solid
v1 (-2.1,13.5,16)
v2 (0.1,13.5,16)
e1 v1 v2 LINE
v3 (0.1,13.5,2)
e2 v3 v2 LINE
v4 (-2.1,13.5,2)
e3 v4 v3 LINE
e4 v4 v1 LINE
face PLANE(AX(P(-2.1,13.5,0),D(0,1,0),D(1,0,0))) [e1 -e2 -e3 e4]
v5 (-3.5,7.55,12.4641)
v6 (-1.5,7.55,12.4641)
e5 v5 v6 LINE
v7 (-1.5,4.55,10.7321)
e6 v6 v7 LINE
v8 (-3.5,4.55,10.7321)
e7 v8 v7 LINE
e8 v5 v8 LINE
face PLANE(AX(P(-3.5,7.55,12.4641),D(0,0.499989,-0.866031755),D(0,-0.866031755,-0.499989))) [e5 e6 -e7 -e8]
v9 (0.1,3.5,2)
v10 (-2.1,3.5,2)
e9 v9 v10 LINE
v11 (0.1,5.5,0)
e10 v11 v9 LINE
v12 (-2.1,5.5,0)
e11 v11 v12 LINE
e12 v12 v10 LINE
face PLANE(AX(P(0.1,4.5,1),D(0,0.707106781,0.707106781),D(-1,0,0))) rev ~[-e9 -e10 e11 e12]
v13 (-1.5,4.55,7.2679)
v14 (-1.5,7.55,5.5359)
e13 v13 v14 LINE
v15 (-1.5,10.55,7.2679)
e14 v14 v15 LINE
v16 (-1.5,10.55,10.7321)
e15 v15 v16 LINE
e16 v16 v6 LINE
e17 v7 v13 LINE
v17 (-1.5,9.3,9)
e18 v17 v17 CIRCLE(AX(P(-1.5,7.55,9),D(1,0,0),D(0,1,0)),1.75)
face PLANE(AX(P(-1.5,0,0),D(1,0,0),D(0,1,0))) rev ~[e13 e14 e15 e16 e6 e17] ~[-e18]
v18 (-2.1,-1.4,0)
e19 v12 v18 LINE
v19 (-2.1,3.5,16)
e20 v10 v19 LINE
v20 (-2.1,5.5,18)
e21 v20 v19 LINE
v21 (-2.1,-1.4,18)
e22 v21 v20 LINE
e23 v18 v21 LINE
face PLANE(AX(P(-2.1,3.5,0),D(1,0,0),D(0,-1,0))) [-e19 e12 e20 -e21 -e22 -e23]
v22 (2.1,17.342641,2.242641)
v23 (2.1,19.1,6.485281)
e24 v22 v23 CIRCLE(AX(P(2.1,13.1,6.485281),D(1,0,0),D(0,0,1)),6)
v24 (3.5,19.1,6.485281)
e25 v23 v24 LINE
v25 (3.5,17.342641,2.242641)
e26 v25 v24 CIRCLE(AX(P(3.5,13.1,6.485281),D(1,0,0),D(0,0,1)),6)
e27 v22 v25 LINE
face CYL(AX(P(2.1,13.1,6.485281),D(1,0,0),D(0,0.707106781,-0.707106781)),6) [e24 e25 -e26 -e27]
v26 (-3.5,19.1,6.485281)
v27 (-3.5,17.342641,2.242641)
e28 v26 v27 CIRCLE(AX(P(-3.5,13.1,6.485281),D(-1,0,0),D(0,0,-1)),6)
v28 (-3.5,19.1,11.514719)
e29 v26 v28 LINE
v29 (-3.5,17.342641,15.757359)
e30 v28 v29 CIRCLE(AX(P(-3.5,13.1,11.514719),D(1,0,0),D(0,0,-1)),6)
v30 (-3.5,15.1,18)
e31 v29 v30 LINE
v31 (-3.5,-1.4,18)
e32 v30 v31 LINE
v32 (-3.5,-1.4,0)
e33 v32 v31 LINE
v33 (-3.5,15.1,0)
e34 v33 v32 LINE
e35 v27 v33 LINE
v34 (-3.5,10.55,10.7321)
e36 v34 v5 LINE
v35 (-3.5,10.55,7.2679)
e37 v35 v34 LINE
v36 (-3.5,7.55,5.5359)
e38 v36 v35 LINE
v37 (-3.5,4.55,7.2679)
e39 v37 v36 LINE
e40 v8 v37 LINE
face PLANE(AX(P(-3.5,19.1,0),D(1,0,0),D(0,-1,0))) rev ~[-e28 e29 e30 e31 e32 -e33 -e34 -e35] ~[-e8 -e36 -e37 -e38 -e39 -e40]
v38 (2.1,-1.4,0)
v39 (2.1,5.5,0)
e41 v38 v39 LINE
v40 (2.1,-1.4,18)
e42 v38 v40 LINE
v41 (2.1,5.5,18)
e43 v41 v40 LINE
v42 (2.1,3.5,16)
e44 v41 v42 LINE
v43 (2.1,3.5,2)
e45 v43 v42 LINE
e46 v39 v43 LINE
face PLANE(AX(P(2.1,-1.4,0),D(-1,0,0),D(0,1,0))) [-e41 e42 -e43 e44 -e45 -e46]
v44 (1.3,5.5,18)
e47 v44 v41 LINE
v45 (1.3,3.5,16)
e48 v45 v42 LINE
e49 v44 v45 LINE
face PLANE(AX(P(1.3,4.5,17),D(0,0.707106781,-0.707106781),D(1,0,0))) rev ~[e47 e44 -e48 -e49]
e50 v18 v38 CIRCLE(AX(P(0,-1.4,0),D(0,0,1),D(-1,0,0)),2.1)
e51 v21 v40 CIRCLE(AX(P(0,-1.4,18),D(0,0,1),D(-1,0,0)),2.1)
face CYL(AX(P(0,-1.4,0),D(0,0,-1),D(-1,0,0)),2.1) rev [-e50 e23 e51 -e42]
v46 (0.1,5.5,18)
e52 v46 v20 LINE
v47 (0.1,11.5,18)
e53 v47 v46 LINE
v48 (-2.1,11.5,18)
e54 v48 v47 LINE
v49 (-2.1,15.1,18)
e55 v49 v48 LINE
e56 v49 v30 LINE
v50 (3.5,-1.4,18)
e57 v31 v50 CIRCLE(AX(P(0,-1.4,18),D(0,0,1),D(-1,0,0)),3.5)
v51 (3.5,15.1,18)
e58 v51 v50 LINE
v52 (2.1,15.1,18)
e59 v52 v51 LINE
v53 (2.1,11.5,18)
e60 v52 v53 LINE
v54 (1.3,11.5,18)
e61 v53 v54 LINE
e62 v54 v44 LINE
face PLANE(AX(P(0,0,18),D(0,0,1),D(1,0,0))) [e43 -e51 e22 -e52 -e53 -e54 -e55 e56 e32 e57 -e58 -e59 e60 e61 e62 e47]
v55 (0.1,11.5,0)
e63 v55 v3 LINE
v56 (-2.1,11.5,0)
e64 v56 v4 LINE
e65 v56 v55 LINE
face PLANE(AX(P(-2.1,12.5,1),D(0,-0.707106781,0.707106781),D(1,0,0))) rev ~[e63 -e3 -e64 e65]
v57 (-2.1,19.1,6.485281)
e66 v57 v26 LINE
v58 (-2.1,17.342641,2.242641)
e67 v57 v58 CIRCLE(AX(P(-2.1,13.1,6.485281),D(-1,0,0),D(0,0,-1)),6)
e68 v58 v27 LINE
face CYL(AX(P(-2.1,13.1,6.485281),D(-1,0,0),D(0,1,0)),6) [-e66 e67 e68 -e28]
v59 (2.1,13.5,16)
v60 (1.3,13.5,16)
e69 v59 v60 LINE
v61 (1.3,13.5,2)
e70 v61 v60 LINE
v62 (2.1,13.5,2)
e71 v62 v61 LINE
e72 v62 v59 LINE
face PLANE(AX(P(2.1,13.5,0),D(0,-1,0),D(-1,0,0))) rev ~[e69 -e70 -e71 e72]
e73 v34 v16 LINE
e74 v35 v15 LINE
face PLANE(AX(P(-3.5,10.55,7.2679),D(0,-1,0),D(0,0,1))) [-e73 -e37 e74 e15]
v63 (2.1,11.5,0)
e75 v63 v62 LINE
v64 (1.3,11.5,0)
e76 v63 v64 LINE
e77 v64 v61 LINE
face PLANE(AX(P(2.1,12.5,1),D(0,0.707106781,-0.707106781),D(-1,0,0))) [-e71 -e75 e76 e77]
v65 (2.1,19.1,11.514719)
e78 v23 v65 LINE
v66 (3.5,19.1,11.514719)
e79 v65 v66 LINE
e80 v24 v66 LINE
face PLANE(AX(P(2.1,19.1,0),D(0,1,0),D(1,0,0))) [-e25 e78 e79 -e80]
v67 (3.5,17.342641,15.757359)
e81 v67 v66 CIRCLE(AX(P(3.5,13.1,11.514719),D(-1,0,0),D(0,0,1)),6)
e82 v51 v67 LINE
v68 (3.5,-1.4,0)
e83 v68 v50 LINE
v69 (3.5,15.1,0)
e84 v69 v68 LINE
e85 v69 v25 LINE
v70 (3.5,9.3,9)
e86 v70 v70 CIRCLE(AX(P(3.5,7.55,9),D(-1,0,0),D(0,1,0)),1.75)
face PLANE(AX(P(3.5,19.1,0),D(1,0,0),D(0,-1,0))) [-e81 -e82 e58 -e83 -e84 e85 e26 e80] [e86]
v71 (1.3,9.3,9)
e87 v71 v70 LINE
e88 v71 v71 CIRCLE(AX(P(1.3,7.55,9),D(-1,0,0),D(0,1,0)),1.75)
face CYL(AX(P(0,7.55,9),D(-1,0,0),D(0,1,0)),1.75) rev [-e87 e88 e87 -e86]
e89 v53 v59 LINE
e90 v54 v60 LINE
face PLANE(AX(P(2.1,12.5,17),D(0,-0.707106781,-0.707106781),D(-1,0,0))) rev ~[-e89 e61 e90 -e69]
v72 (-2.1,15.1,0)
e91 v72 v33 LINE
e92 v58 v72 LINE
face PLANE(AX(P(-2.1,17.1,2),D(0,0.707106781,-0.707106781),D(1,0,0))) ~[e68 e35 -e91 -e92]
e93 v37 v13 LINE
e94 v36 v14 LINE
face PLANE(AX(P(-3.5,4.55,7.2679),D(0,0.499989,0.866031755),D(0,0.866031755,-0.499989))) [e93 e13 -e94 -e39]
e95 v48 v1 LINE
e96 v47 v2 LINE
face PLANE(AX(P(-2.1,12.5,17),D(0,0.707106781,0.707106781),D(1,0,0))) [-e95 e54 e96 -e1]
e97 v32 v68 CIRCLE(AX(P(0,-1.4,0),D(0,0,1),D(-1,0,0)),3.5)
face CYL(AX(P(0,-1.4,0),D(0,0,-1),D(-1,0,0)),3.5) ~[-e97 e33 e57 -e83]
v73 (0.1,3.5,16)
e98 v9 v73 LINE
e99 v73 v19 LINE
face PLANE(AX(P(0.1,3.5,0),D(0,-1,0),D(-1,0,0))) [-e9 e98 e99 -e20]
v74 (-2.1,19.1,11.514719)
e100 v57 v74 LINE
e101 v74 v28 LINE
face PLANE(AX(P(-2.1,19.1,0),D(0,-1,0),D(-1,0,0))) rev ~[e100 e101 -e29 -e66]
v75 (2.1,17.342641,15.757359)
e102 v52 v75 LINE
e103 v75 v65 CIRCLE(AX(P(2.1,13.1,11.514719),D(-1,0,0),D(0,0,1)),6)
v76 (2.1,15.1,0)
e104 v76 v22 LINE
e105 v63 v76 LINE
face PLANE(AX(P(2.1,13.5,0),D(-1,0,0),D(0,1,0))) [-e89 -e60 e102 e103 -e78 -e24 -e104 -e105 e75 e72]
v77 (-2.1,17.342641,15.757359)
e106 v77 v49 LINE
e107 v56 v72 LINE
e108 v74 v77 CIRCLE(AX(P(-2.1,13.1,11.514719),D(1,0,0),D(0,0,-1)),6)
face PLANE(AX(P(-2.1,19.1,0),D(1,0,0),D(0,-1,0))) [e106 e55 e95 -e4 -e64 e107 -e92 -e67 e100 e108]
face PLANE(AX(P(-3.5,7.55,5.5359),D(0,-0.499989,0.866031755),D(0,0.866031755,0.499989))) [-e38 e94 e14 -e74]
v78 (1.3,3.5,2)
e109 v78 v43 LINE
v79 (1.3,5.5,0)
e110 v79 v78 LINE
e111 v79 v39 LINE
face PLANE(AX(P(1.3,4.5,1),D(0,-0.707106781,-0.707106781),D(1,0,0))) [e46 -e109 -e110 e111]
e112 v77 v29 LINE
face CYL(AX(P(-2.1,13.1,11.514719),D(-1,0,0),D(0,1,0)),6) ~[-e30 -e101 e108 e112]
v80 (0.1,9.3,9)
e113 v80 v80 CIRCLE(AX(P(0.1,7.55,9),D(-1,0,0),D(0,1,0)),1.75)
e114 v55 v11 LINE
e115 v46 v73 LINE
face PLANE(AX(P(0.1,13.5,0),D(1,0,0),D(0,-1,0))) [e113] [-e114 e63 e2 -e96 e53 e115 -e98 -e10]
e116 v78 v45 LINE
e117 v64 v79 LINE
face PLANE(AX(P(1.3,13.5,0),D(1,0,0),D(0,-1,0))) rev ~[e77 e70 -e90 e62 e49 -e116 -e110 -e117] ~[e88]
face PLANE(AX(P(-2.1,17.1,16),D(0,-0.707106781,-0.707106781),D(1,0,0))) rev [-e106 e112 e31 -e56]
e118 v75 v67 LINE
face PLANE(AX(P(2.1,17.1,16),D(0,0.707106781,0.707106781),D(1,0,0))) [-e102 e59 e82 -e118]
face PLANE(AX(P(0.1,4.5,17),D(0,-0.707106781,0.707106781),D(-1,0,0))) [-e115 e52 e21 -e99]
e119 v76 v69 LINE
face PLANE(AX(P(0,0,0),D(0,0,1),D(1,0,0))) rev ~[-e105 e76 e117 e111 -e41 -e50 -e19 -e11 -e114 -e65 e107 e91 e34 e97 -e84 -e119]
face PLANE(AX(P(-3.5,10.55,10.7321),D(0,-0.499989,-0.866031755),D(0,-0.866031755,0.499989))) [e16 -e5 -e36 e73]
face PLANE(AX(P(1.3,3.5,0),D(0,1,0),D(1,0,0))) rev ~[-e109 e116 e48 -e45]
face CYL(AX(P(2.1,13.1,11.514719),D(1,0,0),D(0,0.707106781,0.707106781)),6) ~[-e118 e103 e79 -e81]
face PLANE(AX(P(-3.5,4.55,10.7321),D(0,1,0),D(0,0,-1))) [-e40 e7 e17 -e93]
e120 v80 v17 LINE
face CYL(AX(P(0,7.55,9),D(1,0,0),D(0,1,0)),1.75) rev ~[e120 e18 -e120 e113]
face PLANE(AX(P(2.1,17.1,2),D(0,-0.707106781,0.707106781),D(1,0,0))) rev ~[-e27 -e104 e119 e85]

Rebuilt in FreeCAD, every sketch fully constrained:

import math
import FreeCAD as App
import Part
import Sketcher

V = App.Vector
Q = App.Units.Quantity


def edges_at(feature, points):
    """Names of the edges that pass closest to the given points."""
    edges = feature.Shape.Edges
    near = lambda p: min(range(len(edges)), key=lambda i: edges[i].distToShape(Part.Vertex(*p))[0])
    return sorted({f"Edge{near(p) + 1}" for p in points})


def add_polygon(sketch, points):
    """Adds a closed chain of lines whose ends are joined by coincident constraints."""
    first, n = sketch.GeometryCount, len(points)
    for a, b in zip(points, points[1:] + points[:1]):
        sketch.addGeometry(Part.LineSegment(App.Vector(*a, 0), App.Vector(*b, 0)), False)
    for i in range(n):
        sketch.addConstraint(Sketcher.Constraint("Coincident", first + i, 2, first + (i + 1) % n, 1))

doc = App.newDocument("Part")
body = doc.addObject("PartDesign::Body", "Body")

# Sketch on XY plane
sketch1 = doc.addObject("Sketcher::SketchObject", "Sketch")
body.addObject(sketch1)
sketch1.AttachmentSupport = (doc.XY_Plane, [""])
sketch1.MapMode = "FlatFace"
sketch1.addGeometry([
    Part.LineSegment(V(-2.1, 13.5, 0), V(-2.1, 19.1, 0)),  # 0
    Part.LineSegment(V(-2.1, 19.1, 0), V(-3.5, 19.1, 0)),  # 1
    Part.LineSegment(V(-3.5, 19.1, 0), V(-3.5, -1.4, 0)),  # 2
    Part.ArcOfCircle(Part.Circle(V(0, -1.4, 0), V(0, 0, 1), 3.5), math.radians(180), math.radians(360)),  # 3
    Part.LineSegment(V(3.5, -1.4, 0), V(3.5, 19.1, 0)),  # 4
    Part.LineSegment(V(3.5, 19.1, 0), V(2.1, 19.1, 0)),  # 5
    Part.LineSegment(V(2.1, 19.1, 0), V(2.1, 13.5, 0)),  # 6
    Part.LineSegment(V(2.1, 13.5, 0), V(1.3, 13.5, 0)),  # 7
    Part.LineSegment(V(1.3, 13.5, 0), V(1.3, 3.5, 0)),  # 8
    Part.LineSegment(V(1.3, 3.5, 0), V(2.1, 3.5, 0)),  # 9
    Part.LineSegment(V(2.1, 3.5, 0), V(2.1, -1.4, 0)),  # 10
    Part.ArcOfCircle(Part.Circle(V(0, -1.4, 0), V(0, 0, 1), 2.1), math.radians(180), math.radians(360)),  # 11
    Part.LineSegment(V(-2.1, -1.4, 0), V(-2.1, 3.5, 0)),  # 12
    Part.LineSegment(V(-2.1, 3.5, 0), V(0.1, 3.5, 0)),  # 13
    Part.LineSegment(V(0.1, 3.5, 0), V(0.1, 13.5, 0)),  # 14
    Part.LineSegment(V(0.1, 13.5, 0), V(-2.1, 13.5, 0)),  # 15
], False)
sketch1.addConstraint([
    Sketcher.Constraint("Coincident", 0, 2, 1, 1),
    Sketcher.Constraint("Coincident", 1, 2, 2, 1),
    Sketcher.Constraint("Tangent", 2, 2, 3, 1),
    Sketcher.Constraint("Tangent", 3, 2, 4, 1),
    Sketcher.Constraint("Coincident", 4, 2, 5, 1),
    Sketcher.Constraint("Coincident", 5, 2, 6, 1),
    Sketcher.Constraint("Coincident", 6, 2, 7, 1),
    Sketcher.Constraint("Coincident", 7, 2, 8, 1),
    Sketcher.Constraint("Coincident", 8, 2, 9, 1),
    Sketcher.Constraint("Coincident", 9, 2, 10, 1),
    Sketcher.Constraint("Tangent", 10, 2, 11, 2),
    Sketcher.Constraint("Tangent", 11, 1, 12, 1),
    Sketcher.Constraint("Coincident", 12, 2, 13, 1),
    Sketcher.Constraint("Coincident", 13, 2, 14, 1),
    Sketcher.Constraint("Coincident", 14, 2, 15, 1),
    Sketcher.Constraint("Coincident", 15, 2, 0, 1),
    Sketcher.Constraint("Vertical", 0),
    Sketcher.Constraint("Horizontal", 1),
    Sketcher.Constraint("Vertical", 2),
    Sketcher.Constraint("Vertical", 4),
    Sketcher.Constraint("Horizontal", 5),
    Sketcher.Constraint("Vertical", 6),
    Sketcher.Constraint("Horizontal", 7),
    Sketcher.Constraint("Vertical", 8),
    Sketcher.Constraint("Horizontal", 9),
    Sketcher.Constraint("Vertical", 10),
    Sketcher.Constraint("Vertical", 12),
    Sketcher.Constraint("Horizontal", 13),
    Sketcher.Constraint("Vertical", 14),
    Sketcher.Constraint("Horizontal", 15),
    Sketcher.Constraint("Coincident", 11, 3, 3, 3),
    Sketcher.Constraint("Symmetric", 1, 2, 4, 2, -2),
    Sketcher.Constraint("Symmetric", 6, 2, 15, 2, -2),
    Sketcher.Constraint("Horizontal", 9, 2, 12, 2),
    Sketcher.Constraint("Vertical", 6, 2, 9, 2),
    Sketcher.Constraint("Radius", 3, Q("3.5 mm")),
    Sketcher.Constraint("Radius", 11, Q("2.1 mm")),
    Sketcher.Constraint("DistanceY", 8, 2, 8, 1, Q("10 mm")),
    Sketcher.Constraint("DistanceX", 7, 2, 7, 1, Q("0.8 mm")),
    Sketcher.Constraint("DistanceX", 13, 1, 13, 2, Q("2.2 mm")),
    Sketcher.Constraint("DistanceY", 3, 3, -1, 1, Q("1.4 mm")),
    Sketcher.Constraint("DistanceY", -1, 1, 8, 2, Q("3.5 mm")),
    Sketcher.Constraint("DistanceY", 0, 1, 0, 2, Q("5.6 mm")),
])
pad1 = doc.addObject("PartDesign::Pad", "Pad")
body.addObject(pad1)
pad1.Profile = sketch1
pad1.Length = 18

# Sketch on YZ plane
sketch2 = doc.addObject("Sketcher::SketchObject", "Sketch001")
body.addObject(sketch2)
sketch2.AttachmentSupport = (doc.YZ_Plane, [""])
sketch2.MapMode = "FlatFace"
sketch2.addGeometry(Part.Circle(V(7.5, 9, 0), V(0, 0, 1), 1.8), False)
sketch2.addConstraint([
    Sketcher.Constraint("Diameter", 0, Q("3.5 mm")),
    Sketcher.Constraint("DistanceY", -1, 1, 0, 3, Q("9 mm")),
    Sketcher.Constraint("DistanceX", -1, 1, 0, 3, Q("7.55 mm")),
])
pocket1 = doc.addObject("PartDesign::Pocket", "Pocket")
body.addObject(pocket1)
pocket1.Profile = sketch2
pocket1.Length = 14
pocket1.Midplane = True
doc.recompute()

chamfer = doc.addObject("PartDesign::Chamfer", "Chamfer")
body.addObject(chamfer)
chamfer.Base = (pocket1, edges_at(pocket1, [
    (2.8, 19.1, 0),
    (-2.8, 19.1, 0),
    (2.8, 19.1, 18),
    (-2.8, 19.1, 18),
]))
chamfer.Size = 4
doc.recompute()

fillet = doc.addObject("PartDesign::Fillet", "Fillet")
body.addObject(fillet)
fillet.Base = (chamfer, edges_at(chamfer, [
    (2.8, 19.1, 4),
    (2.8, 19.1, 14),
    (-2.8, 19.1, 4),
    (-2.8, 19.1, 14),
]))
fillet.Radius = 6

# Sketch on YZ plane
sketch3 = doc.addObject("Sketcher::SketchObject", "Sketch002")
body.addObject(sketch3)
sketch3.AttachmentSupport = (doc.YZ_Plane, [""])
sketch3.MapMode = "FlatFace"
sketch3.AttachmentOffset = App.Placement(V(0, 0, -3.5), App.Rotation())
add_polygon(sketch3, [(10.6, 7.3), (10.6, 10.7), (7.5, 12.5), (4.5, 10.7), (4.5, 7.3), (7.5, 5.5)])  # lines 0-5
sketch3.addGeometry(Part.Circle(V(7.5, 9, 0), V(0, 0, 1), 1.8), False)  # 6
sketch3.addConstraint([
    Sketcher.Constraint("Vertical", 0),
    Sketcher.Constraint("Vertical", 3),
    Sketcher.Constraint("Parallel", 1, 4),
    Sketcher.Constraint("Parallel", 2, 5),
    Sketcher.Constraint("Horizontal", 0, 2, 2, 2),
    Sketcher.Constraint("Horizontal", 3, 2, 5, 2),
    Sketcher.Constraint("Vertical", 6, 3, 1, 2),
    Sketcher.Constraint("Vertical", 1, 2, 4, 2),
    Sketcher.Constraint("Diameter", 6, Q("3.5 mm")),
    Sketcher.Constraint("DistanceX", 2, 2, 0, 2, Q("6 mm")),
    Sketcher.Constraint("Angle", 1, Q("150.0007 deg")),
    Sketcher.Constraint("DistanceY", -1, 1, 6, 3, Q("9 mm")),
    Sketcher.Constraint("DistanceX", -1, 1, 6, 3, Q("7.55 mm")),
    Sketcher.Constraint("DistanceY", 0, 1, 0, 2, Q("3.4642 mm")),
    Sketcher.Constraint("DistanceY", -1, 1, 0, 2, Q("10.732 mm")),
])
pocket2 = doc.addObject("PartDesign::Pocket", "Pocket001")
body.addObject(pocket2)
pocket2.Profile = sketch3
pocket2.Length = 2
pocket2.Reversed = True
doc.recompute()

chamfer2 = doc.addObject("PartDesign::Chamfer", "Chamfer001")
body.addObject(chamfer2)
chamfer2.Base = (pocket2, edges_at(pocket2, [
    (-1, 13.5, 18),
    (-1, 3.5, 18),
    (1.7, 13.5, 18),
    (1.7, 3.5, 18),
    (1.7, 13.5, 0),
    (-1, 13.5, 0),
    (1.7, 3.5, 0),
    (-1, 3.5, 0),
]))
chamfer2.Size = 2

doc.recompute()
